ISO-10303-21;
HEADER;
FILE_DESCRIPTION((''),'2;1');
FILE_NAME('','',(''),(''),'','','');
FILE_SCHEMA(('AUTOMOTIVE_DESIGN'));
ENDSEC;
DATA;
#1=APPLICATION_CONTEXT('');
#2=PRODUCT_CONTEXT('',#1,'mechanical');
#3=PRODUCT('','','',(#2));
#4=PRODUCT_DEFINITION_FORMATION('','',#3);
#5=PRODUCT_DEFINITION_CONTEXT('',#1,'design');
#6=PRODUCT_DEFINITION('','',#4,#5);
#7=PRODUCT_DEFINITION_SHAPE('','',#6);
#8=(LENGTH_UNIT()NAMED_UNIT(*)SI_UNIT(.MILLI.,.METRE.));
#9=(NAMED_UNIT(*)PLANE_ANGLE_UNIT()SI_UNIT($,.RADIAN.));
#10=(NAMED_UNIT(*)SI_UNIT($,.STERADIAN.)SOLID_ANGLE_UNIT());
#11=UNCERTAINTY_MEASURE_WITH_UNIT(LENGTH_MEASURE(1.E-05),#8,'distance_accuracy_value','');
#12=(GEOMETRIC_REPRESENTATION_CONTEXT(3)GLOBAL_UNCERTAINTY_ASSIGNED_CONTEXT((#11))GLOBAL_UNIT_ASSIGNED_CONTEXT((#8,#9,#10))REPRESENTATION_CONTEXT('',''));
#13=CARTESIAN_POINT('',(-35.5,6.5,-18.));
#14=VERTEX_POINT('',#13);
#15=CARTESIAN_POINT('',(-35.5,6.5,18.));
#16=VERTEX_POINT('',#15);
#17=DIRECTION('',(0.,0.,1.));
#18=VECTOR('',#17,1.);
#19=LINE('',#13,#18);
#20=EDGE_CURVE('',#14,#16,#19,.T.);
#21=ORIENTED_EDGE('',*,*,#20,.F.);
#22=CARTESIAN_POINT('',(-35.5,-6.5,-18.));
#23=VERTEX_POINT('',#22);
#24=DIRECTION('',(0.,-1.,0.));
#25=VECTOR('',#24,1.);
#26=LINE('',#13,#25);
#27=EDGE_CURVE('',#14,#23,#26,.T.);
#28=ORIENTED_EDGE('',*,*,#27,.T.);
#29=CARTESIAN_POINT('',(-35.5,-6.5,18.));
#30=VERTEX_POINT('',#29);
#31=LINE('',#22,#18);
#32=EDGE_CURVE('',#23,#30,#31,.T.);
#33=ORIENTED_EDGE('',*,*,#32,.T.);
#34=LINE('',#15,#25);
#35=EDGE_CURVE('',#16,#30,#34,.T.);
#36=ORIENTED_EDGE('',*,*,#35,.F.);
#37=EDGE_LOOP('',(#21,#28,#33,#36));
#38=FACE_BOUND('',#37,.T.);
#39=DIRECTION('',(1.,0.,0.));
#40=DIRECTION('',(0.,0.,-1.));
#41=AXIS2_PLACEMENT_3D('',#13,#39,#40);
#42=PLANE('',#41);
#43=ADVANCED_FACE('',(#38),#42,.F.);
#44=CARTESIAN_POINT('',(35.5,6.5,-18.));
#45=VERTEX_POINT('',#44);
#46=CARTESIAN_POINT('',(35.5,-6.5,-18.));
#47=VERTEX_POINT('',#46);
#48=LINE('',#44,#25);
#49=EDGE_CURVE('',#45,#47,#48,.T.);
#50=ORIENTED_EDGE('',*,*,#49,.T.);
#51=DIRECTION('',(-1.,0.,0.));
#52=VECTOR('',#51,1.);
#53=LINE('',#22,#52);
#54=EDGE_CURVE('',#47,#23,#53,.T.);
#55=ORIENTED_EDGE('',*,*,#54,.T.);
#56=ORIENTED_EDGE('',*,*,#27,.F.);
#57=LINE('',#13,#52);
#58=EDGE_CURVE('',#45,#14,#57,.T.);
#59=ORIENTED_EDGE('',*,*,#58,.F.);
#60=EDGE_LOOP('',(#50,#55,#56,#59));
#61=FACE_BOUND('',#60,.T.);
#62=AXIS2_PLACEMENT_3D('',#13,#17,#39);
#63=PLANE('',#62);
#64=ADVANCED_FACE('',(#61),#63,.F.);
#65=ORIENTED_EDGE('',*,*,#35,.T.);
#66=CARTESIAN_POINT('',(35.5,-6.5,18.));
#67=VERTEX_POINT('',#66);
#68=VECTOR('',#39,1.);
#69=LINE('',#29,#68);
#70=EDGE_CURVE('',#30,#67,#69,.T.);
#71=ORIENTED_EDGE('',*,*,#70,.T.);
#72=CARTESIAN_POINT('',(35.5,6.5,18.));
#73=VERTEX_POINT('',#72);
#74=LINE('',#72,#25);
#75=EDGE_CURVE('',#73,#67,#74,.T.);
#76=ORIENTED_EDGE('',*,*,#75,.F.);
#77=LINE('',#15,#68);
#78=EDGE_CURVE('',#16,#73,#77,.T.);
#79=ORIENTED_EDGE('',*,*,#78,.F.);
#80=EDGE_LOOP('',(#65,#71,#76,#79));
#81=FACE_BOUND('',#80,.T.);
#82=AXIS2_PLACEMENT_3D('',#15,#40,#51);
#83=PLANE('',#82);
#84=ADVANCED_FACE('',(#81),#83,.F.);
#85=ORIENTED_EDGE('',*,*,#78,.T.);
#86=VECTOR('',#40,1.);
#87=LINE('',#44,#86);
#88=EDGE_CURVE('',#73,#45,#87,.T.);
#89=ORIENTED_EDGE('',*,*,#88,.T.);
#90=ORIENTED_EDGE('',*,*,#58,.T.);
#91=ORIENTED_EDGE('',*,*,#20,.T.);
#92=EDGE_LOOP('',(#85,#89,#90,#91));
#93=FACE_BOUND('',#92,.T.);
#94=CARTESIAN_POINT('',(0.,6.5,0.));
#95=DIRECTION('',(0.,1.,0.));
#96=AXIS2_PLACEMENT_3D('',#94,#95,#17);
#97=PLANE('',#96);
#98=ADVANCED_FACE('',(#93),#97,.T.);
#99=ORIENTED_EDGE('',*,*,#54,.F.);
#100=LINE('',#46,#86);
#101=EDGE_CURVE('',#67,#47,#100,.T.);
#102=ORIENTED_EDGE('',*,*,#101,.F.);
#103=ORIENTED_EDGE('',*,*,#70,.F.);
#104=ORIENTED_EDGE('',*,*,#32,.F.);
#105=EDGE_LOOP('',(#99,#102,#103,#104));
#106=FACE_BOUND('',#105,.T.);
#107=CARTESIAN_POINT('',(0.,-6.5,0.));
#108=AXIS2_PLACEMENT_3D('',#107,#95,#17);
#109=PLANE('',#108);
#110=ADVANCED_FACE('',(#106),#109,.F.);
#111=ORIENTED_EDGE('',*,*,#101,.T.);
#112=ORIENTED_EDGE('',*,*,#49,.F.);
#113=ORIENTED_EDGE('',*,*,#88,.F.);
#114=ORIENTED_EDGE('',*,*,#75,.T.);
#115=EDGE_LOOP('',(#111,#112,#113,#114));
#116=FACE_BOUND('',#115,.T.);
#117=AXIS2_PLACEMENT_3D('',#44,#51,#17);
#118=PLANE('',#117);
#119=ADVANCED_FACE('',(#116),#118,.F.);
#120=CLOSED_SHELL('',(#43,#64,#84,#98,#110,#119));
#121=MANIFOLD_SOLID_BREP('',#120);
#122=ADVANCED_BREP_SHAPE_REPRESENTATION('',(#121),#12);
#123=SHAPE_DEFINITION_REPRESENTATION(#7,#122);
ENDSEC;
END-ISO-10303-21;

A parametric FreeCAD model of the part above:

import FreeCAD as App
import Part
import Sketcher
from FreeCAD import Vector
Q = App.Units.Quantity


def add_polygon(sketch, points):
    """Adds a closed chain of lines whose ends are joined by coincident constraints."""
    first, n = sketch.GeometryCount, len(points)
    for a, b in zip(points, points[1:] + points[:1]):
        sketch.addGeometry(Part.LineSegment(App.Vector(*a, 0), App.Vector(*b, 0)), False)
    for i in range(n):
        sketch.addConstraint(Sketcher.Constraint("Coincident", first + i, 2, first + (i + 1) % n, 1))

doc = App.newDocument("Part")
body = doc.addObject("PartDesign::Body", "Body")

sketch1 = body.newObject("Sketcher::SketchObject", "Sketch")
sketch1.AttachmentSupport = (doc.getObject("XZ_Plane"), [""])
sketch1.MapMode = "FlatFace"
add_polygon(sketch1, [(-36, -18), (-36, 18), (36, 18), (36, -18)])
sketch1.addConstraint([
    Sketcher.Constraint("Vertical", 0),
    Sketcher.Constraint("Horizontal", 1),
    Sketcher.Constraint("Vertical", 2),
    Sketcher.Constraint("Horizontal", 3),
    Sketcher.Constraint("Symmetric", 0, 2, 2, 2, -1, 1),
    Sketcher.Constraint("DistanceX", 1, 1, 1, 2, Q("71 mm")),
    Sketcher.Constraint("DistanceY", 0, 1, 0, 2, Q("36 mm")),
])
pad1 = body.newObject("PartDesign::Pad", "Pad")
pad1.Profile = sketch1
pad1.Length = 13
pad1.Midplane = True

doc.recompute()
